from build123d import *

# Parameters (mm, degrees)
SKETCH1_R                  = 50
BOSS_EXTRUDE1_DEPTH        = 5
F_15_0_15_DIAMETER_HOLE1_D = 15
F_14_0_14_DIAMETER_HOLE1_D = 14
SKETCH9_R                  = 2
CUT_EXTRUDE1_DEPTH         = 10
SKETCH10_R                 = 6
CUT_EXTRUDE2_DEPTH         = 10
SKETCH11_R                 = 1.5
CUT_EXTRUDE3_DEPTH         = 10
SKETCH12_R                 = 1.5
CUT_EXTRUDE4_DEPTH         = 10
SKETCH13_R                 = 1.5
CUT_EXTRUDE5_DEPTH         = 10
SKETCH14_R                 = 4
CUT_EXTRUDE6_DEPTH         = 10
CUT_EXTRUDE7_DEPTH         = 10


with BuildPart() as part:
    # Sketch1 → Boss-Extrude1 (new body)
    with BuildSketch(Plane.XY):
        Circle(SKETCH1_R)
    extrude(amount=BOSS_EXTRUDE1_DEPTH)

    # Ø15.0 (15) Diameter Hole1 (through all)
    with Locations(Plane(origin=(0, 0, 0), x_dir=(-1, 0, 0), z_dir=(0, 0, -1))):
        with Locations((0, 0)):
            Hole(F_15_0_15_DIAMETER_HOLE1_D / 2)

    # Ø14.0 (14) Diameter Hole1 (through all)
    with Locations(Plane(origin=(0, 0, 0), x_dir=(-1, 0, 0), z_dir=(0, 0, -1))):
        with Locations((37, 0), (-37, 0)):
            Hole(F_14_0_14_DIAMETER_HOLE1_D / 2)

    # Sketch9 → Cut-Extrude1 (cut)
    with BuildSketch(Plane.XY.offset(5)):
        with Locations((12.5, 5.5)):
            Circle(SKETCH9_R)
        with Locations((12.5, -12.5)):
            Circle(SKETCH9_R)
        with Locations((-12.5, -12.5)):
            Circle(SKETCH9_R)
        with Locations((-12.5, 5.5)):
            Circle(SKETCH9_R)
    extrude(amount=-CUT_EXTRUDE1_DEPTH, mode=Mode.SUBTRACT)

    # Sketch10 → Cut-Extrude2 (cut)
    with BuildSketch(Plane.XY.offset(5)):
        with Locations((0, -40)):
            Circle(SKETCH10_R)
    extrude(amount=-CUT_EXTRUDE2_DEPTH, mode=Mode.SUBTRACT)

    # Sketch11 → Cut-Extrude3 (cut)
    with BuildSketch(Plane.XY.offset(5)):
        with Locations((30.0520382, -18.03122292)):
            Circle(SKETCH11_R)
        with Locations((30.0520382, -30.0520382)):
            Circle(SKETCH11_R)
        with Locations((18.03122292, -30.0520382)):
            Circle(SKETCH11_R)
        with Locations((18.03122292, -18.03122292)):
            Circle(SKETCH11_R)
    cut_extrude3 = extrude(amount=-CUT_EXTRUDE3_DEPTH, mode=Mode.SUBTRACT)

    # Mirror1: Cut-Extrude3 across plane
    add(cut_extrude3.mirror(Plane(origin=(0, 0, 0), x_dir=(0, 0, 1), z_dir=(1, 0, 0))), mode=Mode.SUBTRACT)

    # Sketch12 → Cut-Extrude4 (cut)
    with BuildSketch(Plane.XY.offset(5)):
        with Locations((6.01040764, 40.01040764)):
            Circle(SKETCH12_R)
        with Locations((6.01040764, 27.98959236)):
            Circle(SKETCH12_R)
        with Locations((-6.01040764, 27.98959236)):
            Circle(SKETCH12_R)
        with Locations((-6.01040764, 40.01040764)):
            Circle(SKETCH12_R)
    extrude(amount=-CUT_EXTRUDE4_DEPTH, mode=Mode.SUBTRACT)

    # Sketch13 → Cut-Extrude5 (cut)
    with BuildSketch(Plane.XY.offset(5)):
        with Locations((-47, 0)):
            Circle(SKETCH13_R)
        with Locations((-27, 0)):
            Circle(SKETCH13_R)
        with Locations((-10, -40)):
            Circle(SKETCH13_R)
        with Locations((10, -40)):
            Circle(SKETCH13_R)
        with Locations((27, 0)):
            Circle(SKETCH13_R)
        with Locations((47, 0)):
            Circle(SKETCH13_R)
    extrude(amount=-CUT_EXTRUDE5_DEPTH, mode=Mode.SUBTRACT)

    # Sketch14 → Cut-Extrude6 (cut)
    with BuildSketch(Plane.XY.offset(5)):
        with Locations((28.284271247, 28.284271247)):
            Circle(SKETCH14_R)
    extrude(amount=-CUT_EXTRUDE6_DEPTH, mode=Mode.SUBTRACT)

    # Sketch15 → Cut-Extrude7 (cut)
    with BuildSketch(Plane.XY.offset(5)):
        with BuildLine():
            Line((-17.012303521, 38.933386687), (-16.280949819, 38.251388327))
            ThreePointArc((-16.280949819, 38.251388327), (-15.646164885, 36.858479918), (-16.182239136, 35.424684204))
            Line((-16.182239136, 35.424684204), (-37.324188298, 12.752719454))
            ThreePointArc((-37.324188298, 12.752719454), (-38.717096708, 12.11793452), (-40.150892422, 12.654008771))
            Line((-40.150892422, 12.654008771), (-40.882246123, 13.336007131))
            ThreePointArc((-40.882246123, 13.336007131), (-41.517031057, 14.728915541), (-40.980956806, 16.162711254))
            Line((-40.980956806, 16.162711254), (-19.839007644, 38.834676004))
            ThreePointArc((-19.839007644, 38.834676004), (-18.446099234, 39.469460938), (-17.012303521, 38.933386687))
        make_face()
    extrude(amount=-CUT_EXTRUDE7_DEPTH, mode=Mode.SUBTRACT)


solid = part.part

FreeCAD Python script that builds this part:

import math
import FreeCAD as App
import Part
import Sketcher
from FreeCAD import Vector
Q = App.Units.Quantity

doc = App.newDocument("Part")
body = doc.addObject("PartDesign::Body", "Body")

# Sketch on XY plane
sketch1 = body.newObject("Sketcher::SketchObject", "Sketch")
sketch1.AttachmentSupport = (doc.getObject("XY_Plane"), [""])
sketch1.MapMode = "FlatFace"
sketch1.addGeometry(Part.Circle(Vector(0, 0, 0), Vector(0, 0, 1), 50), False)
sketch1.addConstraint([
    Sketcher.Constraint("Coincident", 0, 3, -1, 1),
    Sketcher.Constraint("Diameter", 0, Q("100 mm")),
])
pad1 = body.newObject("PartDesign::Pad", "Pad")
pad1.Profile = sketch1
pad1.Length = 5

# Sketch on XY plane
sketch2 = body.newObject("Sketcher::SketchObject", "Sketch001")
sketch2.AttachmentSupport = (doc.getObject("XY_Plane"), [""])
sketch2.MapMode = "FlatFace"
sketch2.addGeometry(Part.Circle(Vector(0, 0, 0), Vector(0, 0, 1), 8), False)
sketch2.addConstraint([
    Sketcher.Constraint("Coincident", 0, 3, -1, 1),
    Sketcher.Constraint("Diameter", 0, Q("15 mm")),
])
doc.recompute()
hole = body.newObject("PartDesign::Hole", "Hole")
hole.Profile = sketch2
hole.ThreadType = "None"
hole.Diameter = 15
hole.DepthType = "ThroughAll"
hole.Reversed = True

# Sketch on XY plane
sketch3 = body.newObject("Sketcher::SketchObject", "Sketch002")
sketch3.AttachmentSupport = (doc.getObject("XY_Plane"), [""])
sketch3.MapMode = "FlatFace"
sketch3.addGeometry([
    Part.Circle(Vector(-37, 0, 0), Vector(0, 0, 1), 7),
    Part.Circle(Vector(37, 0, 0), Vector(0, 0, 1), 7),
], False)
sketch3.addConstraint([
    Sketcher.Constraint("Equal", 0, 1),
    Sketcher.Constraint("Symmetric", 0, 3, 1, 3, -1, 1),
    Sketcher.Constraint("PointOnObject", 0, 3, -1),
    Sketcher.Constraint("Diameter", 0, Q("14 mm")),
    Sketcher.Constraint("DistanceX", 0, 3, -1, 1, Q("37 mm")),
])
doc.recompute()
hole2 = body.newObject("PartDesign::Hole", "Hole001")
hole2.Profile = sketch3
hole2.ThreadType = "None"
hole2.Diameter = 14
hole2.DepthType = "ThroughAll"
hole2.Reversed = True

# Sketch on XY plane
sketch4 = body.newObject("Sketcher::SketchObject", "Sketch003")
sketch4.AttachmentSupport = (doc.getObject("XY_Plane"), [""])
sketch4.MapMode = "FlatFace"
sketch4.AttachmentOffset = App.Placement(Vector(0, 0, 5), App.Rotation())
sketch4.addGeometry([
    Part.Circle(Vector(12.5, 5.5, 0), Vector(0, 0, 1), 2),
    Part.Circle(Vector(12.5, -12.5, 0), Vector(0, 0, 1), 2),
    Part.Circle(Vector(-12.5, -12.5, 0), Vector(0, 0, 1), 2),
    Part.Circle(Vector(-12.5, 5.5, 0), Vector(0, 0, 1), 2),
], False)
sketch4.addConstraint([
    Sketcher.Constraint("Equal", 0, 1),
    Sketcher.Constraint("Equal", 1, 2),
    Sketcher.Constraint("Equal", 2, 3),
    Sketcher.Constraint("Symmetric", 1, 3, 2, 3, -2),
    Sketcher.Constraint("Symmetric", 0, 3, 3, 3, -2),
    Sketcher.Constraint("Vertical", 0, 3, 1, 3),
    Sketcher.Constraint("Diameter", 0, Q("4 mm")),
    Sketcher.Constraint("DistanceY", 1, 3, 0, 3, Q("18 mm")),
    Sketcher.Constraint("DistanceX", 2, 3, 1, 3, Q("25 mm")),
    Sketcher.Constraint("DistanceY", -1, 1, 0, 3, Q("5.5 mm")),
])
pocket1 = body.newObject("PartDesign::Pocket", "Pocket")
pocket1.Profile = sketch4
pocket1.Length = 10

# Sketch on XY plane
sketch5 = body.newObject("Sketcher::SketchObject", "Sketch004")
sketch5.AttachmentSupport = (doc.getObject("XY_Plane"), [""])
sketch5.MapMode = "FlatFace"
sketch5.AttachmentOffset = App.Placement(Vector(0, 0, 5), App.Rotation())
sketch5.addGeometry(Part.Circle(Vector(0, -40, 0), Vector(0, 0, 1), 6), False)
sketch5.addConstraint([
    Sketcher.Constraint("PointOnObject", 0, 3, -2),
    Sketcher.Constraint("Diameter", 0, Q("12 mm")),
    Sketcher.Constraint("DistanceY", 0, 3, -1, 1, Q("40 mm")),
])
pocket2 = body.newObject("PartDesign::Pocket", "Pocket001")
pocket2.Profile = sketch5
pocket2.Length = 10

# Sketch on XY plane
sketch6 = body.newObject("Sketcher::SketchObject", "Sketch005")
sketch6.AttachmentSupport = (doc.getObject("XY_Plane"), [""])
sketch6.MapMode = "FlatFace"
sketch6.AttachmentOffset = App.Placement(Vector(0, 0, 5), App.Rotation())
sketch6.addGeometry([
    Part.Circle(Vector(30.1, -18, 0), Vector(0, 0, 1), 1.5),
    Part.Circle(Vector(30.1, -30.1, 0), Vector(0, 0, 1), 1.5),
    Part.Circle(Vector(18, -30.1, 0), Vector(0, 0, 1), 1.5),
    Part.Circle(Vector(18, -18, 0), Vector(0, 0, 1), 1.5),
], False)
sketch6.addConstraint([
    Sketcher.Constraint("Equal", 0, 1),
    Sketcher.Constraint("Equal", 1, 2),
    Sketcher.Constraint("Equal", 2, 3),
    Sketcher.Constraint("Horizontal", 1, 3, 2, 3),
    Sketcher.Constraint("Horizontal", 0, 3, 3, 3),
    Sketcher.Constraint("Vertical", 0, 3, 1, 3),
    Sketcher.Constraint("Vertical", 2, 3, 3, 3),
    Sketcher.Constraint("Diameter", 0, Q("3 mm")),
    Sketcher.Constraint("DistanceX", -1, 1, 0, 3, Q("30.052038 mm")),
    Sketcher.Constraint("DistanceY", 1, 3, -1, 1, Q("30.052038 mm")),
    Sketcher.Constraint("DistanceY", 0, 3, -1, 1, Q("18.031223 mm")),
    Sketcher.Constraint("DistanceX", -1, 1, 2, 3, Q("18.031223 mm")),
])
pocket3 = body.newObject("PartDesign::Pocket", "Pocket002")
pocket3.Profile = sketch6
pocket3.Length = 10
doc.recompute()

mirrored = body.newObject("PartDesign::Mirrored", "Mirrored")
mirrored.Originals = [pocket3]
mirrored.MirrorPlane = (doc.getObject("YZ_Plane"), [""])
body.Tip = mirrored

# Sketch on XY plane
sketch7 = body.newObject("Sketcher::SketchObject", "Sketch006")
sketch7.AttachmentSupport = (doc.getObject("XY_Plane"), [""])
sketch7.MapMode = "FlatFace"
sketch7.AttachmentOffset = App.Placement(Vector(0, 0, 5), App.Rotation())
sketch7.addGeometry([
    Part.Circle(Vector(6, 40, 0), Vector(0, 0, 1), 1.5),
    Part.Circle(Vector(6, 28, 0), Vector(0, 0, 1), 1.5),
    Part.Circle(Vector(-6, 28, 0), Vector(0, 0, 1), 1.5),
    Part.Circle(Vector(-6, 40, 0), Vector(0, 0, 1), 1.5),
], False)
sketch7.addConstraint([
    Sketcher.Constraint("Equal", 0, 1),
    Sketcher.Constraint("Equal", 1, 2),
    Sketcher.Constraint("Equal", 2, 3),
    Sketcher.Constraint("Symmetric", 1, 3, 2, 3, -2),
    Sketcher.Constraint("Symmetric", 0, 3, 3, 3, -2),
    Sketcher.Constraint("Vertical", 0, 3, 1, 3),
    Sketcher.Constraint("Diameter", 0, Q("3 mm")),
    Sketcher.Constraint("DistanceX", -1, 1, 0, 3, Q("6.010408 mm")),
    Sketcher.Constraint("DistanceY", -1, 1, 0, 3, Q("40.010408 mm")),
    Sketcher.Constraint("DistanceY", -1, 1, 1, 3, Q("27.989592 mm")),
])
pocket4 = body.newObject("PartDesign::Pocket", "Pocket003")
pocket4.Profile = sketch7
pocket4.Length = 10

# Sketch on XY plane
sketch8 = body.newObject("Sketcher::SketchObject", "Sketch007")
sketch8.AttachmentSupport = (doc.getObject("XY_Plane"), [""])
sketch8.MapMode = "FlatFace"
sketch8.AttachmentOffset = App.Placement(Vector(0, 0, 5), App.Rotation())
sketch8.addGeometry([
    Part.Circle(Vector(-47, 0, 0), Vector(0, 0, 1), 1.5),  # 0
    Part.Circle(Vector(-27, 0, 0), Vector(0, 0, 1), 1.5),  # 1
    Part.Circle(Vector(-10, -40, 0), Vector(0, 0, 1), 1.5),  # 2
    Part.Circle(Vector(10, -40, 0), Vector(0, 0, 1), 1.5),  # 3
    Part.Circle(Vector(27, 0, 0), Vector(0, 0, 1), 1.5),  # 4
    Part.Circle(Vector(47, 0, 0), Vector(0, 0, 1), 1.5),  # 5
], False)
sketch8.addConstraint([
    Sketcher.Constraint("Equal", 0, 1),
    Sketcher.Constraint("Equal", 1, 2),
    Sketcher.Constraint("Equal", 2, 3),
    Sketcher.Constraint("Equal", 3, 4),
    Sketcher.Constraint("Equal", 4, 5),
    Sketcher.Constraint("Symmetric", 1, 3, 4, 3, -1, 1),
    Sketcher.Constraint("Symmetric", 0, 3, 5, 3, -1, 1),
    Sketcher.Constraint("Symmetric", 2, 3, 3, 3, -2),
    Sketcher.Constraint("PointOnObject", 0, 3, -1),
    Sketcher.Constraint("PointOnObject", 1, 3, -1),
    Sketcher.Constraint("Diameter", 0, Q("3 mm")),
    Sketcher.Constraint("DistanceX", 0, 3, -1, 1, Q("47 mm")),
    Sketcher.Constraint("DistanceX", 1, 3, -1, 1, Q("27 mm")),
    Sketcher.Constraint("DistanceX", 2, 3, -1, 1, Q("10 mm")),
    Sketcher.Constraint("DistanceY", 2, 3, -1, 1, Q("40 mm")),
])
pocket5 = body.newObject("PartDesign::Pocket", "Pocket004")
pocket5.Profile = sketch8
pocket5.Length = 10

# Sketch on XY plane
sketch9 = body.newObject("Sketcher::SketchObject", "Sketch008")
sketch9.AttachmentSupport = (doc.getObject("XY_Plane"), [""])
sketch9.MapMode = "FlatFace"
sketch9.AttachmentOffset = App.Placement(Vector(0, 0, 5), App.Rotation())
sketch9.addGeometry(Part.Circle(Vector(28.3, 28.3, 0), Vector(0, 0, 1), 4), False)
sketch9.addConstraint([
    Sketcher.Constraint("Diameter", 0, Q("8 mm")),
    Sketcher.Constraint("DistanceX", -1, 1, 0, 3, Q("28.284271 mm")),
    Sketcher.Constraint("DistanceY", -1, 1, 0, 3, Q("28.284271 mm")),
])
pocket6 = body.newObject("PartDesign::Pocket", "Pocket005")
pocket6.Profile = sketch9
pocket6.Length = 10

# Sketch on XY plane
sketch10 = body.newObject("Sketcher::SketchObject", "Sketch009")
sketch10.AttachmentSupport = (doc.getObject("XY_Plane"), [""])
sketch10.MapMode = "FlatFace"
sketch10.AttachmentOffset = App.Placement(Vector(0, 0, 5), App.Rotation())
sketch10.addGeometry([
    Part.LineSegment(Vector(-16.3, 38.3, 0), Vector(-17, 38.9, 0)),  # 0
    Part.ArcOfCircle(Part.Circle(Vector(-18.4, 37.5, 0), Vector(0, 0, 1), 2), math.radians(47), math.radians(137)),  # 1
    Part.LineSegment(Vector(-19.8, 38.8, 0), Vector(-41, 16.2, 0)),  # 2
    Part.ArcOfCircle(Part.Circle(Vector(-39.5, 14.8, 0), Vector(0, 0, 1), 2), math.radians(137), math.radians(227)),  # 3
    Part.LineSegment(Vector(-40.9, 13.3, 0), Vector(-40.2, 12.7, 0)),  # 4
    Part.ArcOfCircle(Part.Circle(Vector(-38.8, 14.1, 0), Vector(0, 0, 1), 2), math.radians(-133), math.radians(-43)),  # 5
    Part.LineSegment(Vector(-37.3, 12.8, 0), Vector(-16.2, 35.4, 0)),  # 6
    Part.ArcOfCircle(Part.Circle(Vector(-17.6, 36.8, 0), Vector(0, 0, 1), 2), math.radians(-43), math.radians(47)),  # 7
], False)
sketch10.addConstraint([
    Sketcher.Constraint("Tangent", 0, 2, 1, 1),
    Sketcher.Constraint("Tangent", 1, 2, 2, 1),
    Sketcher.Constraint("Tangent", 2, 2, 3, 1),
    Sketcher.Constraint("Tangent", 3, 2, 4, 1),
    Sketcher.Constraint("Tangent", 4, 2, 5, 1),
    Sketcher.Constraint("Tangent", 5, 2, 6, 1),
    Sketcher.Constraint("Tangent", 6, 2, 7, 1),
    Sketcher.Constraint("Tangent", 7, 2, 0, 1),
    Sketcher.Constraint("Equal", 1, 3),
    Sketcher.Constraint("Equal", 3, 5),
    Sketcher.Constraint("Equal", 5, 7),
    Sketcher.Constraint("Perpendicular", 0, 2),
    Sketcher.Constraint("Perpendicular", 2, 4),
    Sketcher.Constraint("Perpendicular", 4, 6),
    Sketcher.Constraint("Radius", 1, Q("2 mm")),
    Sketcher.Constraint("Angle", 0, Q("137 deg")),
    Sketcher.Constraint("Distance", 0, Q("1 mm")),
    Sketcher.Constraint("Distance", 2, Q("31 mm")),
    Sketcher.Constraint("DistanceX", 1, 3, -1, 1, Q("18.3763 mm")),
    Sketcher.Constraint("DistanceY", -1, 1, 1, 3, Q("37.470679 mm")),
])
pocket7 = body.newObject("PartDesign::Pocket", "Pocket006")
pocket7.Profile = sketch10
pocket7.Length = 10

doc.recompute()
